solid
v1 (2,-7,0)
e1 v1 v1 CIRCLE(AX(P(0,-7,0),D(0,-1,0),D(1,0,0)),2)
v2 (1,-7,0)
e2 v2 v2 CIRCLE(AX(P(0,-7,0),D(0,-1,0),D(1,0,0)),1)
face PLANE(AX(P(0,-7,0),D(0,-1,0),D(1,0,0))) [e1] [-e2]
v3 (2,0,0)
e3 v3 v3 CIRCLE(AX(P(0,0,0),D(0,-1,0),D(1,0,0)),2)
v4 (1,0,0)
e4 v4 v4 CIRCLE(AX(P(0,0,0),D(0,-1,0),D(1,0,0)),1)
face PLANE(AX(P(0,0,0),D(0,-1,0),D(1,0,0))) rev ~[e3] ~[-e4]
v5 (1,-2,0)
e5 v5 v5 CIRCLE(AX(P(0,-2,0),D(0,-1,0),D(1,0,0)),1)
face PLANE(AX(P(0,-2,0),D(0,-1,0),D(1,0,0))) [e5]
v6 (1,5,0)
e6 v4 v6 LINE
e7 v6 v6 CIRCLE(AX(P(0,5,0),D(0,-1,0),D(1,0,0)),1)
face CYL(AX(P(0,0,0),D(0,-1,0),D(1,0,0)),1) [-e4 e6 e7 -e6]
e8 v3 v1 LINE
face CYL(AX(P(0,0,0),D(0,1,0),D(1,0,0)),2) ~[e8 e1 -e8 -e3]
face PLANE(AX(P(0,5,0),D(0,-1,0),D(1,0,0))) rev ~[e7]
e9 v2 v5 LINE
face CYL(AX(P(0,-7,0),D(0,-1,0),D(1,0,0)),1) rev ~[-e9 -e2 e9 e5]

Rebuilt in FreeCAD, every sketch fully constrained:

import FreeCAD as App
import Part
import Sketcher

V = App.Vector
Q = App.Units.Quantity

doc = App.newDocument("Part")
params = doc.addObject("Spreadsheet::Sheet", "Params")
for row, (alias, value) in enumerate([
    ("sketch1_diameter", "4 mm"),
    ("pad1_length", "7 mm"),
    ("sketch2_diameter", "2 mm"),
    ("pad2_length", "5 mm"),
    ("sketch3_diameter", "2 mm"),
    ("pocket1_length", "5 mm"),
], start=1):
    params.set(f"A{row}", alias)
    params.set(f"B{row}", "=" + value)
    params.setAlias(f"B{row}", alias)

body = doc.addObject("PartDesign::Body", "Body")

sketch1 = body.newObject("Sketcher::SketchObject", "Sketch")
sketch1.AttachmentSupport = (doc.getObject("XZ_Plane"), [""])
sketch1.MapMode = "FlatFace"
sketch1.addGeometry(Part.Circle(V(0, 0, 0), V(0, 0, 1), 2), False)
sketch1.addConstraint([
    Sketcher.Constraint("Coincident", 0, 3, -1, 1),
    Sketcher.Constraint("Diameter", 0, Q("4 mm")),
])
sketch1.setExpression("Constraints[1]", "Params.sketch1_diameter")
pad1 = body.newObject("PartDesign::Pad", "Pad")
pad1.Profile = sketch1
pad1.setExpression("Length", "Params.pad1_length")

sketch2 = body.newObject("Sketcher::SketchObject", "Sketch001")
sketch2.AttachmentSupport = (doc.getObject("XZ_Plane"), [""])
sketch2.MapMode = "FlatFace"
sketch2.addGeometry(Part.Circle(V(0, 0, 0), V(0, 0, 1), 1), False)
sketch2.addConstraint([
    Sketcher.Constraint("Coincident", 0, 3, -1, 1),
    Sketcher.Constraint("Diameter", 0, Q("2 mm")),
])
sketch2.setExpression("Constraints[1]", "Params.sketch2_diameter")
pad2 = body.newObject("PartDesign::Pad", "Pad001")
pad2.Profile = sketch2
pad2.setExpression("Length", "Params.pad2_length")
pad2.Reversed = True

sketch3 = body.newObject("Sketcher::SketchObject", "Sketch002")
sketch3.AttachmentSupport = (doc.getObject("XZ_Plane"), [""])
sketch3.MapMode = "FlatFace"
sketch3.AttachmentOffset = App.Placement(V(0, 0, 7), App.Rotation())
sketch3.addGeometry(Part.Circle(V(0, 0, 0), V(0, 0, 1), 1), False)
sketch3.addConstraint([
    Sketcher.Constraint("Coincident", 0, 3, -1, 1),
    Sketcher.Constraint("Diameter", 0, Q("2 mm")),
])
sketch3.setExpression("Constraints[1]", "Params.sketch3_diameter")
pocket1 = body.newObject("PartDesign::Pocket", "Pocket")
pocket1.Profile = sketch3
pocket1.setExpression("Length", "Params.pocket1_length")

doc.recompute()
